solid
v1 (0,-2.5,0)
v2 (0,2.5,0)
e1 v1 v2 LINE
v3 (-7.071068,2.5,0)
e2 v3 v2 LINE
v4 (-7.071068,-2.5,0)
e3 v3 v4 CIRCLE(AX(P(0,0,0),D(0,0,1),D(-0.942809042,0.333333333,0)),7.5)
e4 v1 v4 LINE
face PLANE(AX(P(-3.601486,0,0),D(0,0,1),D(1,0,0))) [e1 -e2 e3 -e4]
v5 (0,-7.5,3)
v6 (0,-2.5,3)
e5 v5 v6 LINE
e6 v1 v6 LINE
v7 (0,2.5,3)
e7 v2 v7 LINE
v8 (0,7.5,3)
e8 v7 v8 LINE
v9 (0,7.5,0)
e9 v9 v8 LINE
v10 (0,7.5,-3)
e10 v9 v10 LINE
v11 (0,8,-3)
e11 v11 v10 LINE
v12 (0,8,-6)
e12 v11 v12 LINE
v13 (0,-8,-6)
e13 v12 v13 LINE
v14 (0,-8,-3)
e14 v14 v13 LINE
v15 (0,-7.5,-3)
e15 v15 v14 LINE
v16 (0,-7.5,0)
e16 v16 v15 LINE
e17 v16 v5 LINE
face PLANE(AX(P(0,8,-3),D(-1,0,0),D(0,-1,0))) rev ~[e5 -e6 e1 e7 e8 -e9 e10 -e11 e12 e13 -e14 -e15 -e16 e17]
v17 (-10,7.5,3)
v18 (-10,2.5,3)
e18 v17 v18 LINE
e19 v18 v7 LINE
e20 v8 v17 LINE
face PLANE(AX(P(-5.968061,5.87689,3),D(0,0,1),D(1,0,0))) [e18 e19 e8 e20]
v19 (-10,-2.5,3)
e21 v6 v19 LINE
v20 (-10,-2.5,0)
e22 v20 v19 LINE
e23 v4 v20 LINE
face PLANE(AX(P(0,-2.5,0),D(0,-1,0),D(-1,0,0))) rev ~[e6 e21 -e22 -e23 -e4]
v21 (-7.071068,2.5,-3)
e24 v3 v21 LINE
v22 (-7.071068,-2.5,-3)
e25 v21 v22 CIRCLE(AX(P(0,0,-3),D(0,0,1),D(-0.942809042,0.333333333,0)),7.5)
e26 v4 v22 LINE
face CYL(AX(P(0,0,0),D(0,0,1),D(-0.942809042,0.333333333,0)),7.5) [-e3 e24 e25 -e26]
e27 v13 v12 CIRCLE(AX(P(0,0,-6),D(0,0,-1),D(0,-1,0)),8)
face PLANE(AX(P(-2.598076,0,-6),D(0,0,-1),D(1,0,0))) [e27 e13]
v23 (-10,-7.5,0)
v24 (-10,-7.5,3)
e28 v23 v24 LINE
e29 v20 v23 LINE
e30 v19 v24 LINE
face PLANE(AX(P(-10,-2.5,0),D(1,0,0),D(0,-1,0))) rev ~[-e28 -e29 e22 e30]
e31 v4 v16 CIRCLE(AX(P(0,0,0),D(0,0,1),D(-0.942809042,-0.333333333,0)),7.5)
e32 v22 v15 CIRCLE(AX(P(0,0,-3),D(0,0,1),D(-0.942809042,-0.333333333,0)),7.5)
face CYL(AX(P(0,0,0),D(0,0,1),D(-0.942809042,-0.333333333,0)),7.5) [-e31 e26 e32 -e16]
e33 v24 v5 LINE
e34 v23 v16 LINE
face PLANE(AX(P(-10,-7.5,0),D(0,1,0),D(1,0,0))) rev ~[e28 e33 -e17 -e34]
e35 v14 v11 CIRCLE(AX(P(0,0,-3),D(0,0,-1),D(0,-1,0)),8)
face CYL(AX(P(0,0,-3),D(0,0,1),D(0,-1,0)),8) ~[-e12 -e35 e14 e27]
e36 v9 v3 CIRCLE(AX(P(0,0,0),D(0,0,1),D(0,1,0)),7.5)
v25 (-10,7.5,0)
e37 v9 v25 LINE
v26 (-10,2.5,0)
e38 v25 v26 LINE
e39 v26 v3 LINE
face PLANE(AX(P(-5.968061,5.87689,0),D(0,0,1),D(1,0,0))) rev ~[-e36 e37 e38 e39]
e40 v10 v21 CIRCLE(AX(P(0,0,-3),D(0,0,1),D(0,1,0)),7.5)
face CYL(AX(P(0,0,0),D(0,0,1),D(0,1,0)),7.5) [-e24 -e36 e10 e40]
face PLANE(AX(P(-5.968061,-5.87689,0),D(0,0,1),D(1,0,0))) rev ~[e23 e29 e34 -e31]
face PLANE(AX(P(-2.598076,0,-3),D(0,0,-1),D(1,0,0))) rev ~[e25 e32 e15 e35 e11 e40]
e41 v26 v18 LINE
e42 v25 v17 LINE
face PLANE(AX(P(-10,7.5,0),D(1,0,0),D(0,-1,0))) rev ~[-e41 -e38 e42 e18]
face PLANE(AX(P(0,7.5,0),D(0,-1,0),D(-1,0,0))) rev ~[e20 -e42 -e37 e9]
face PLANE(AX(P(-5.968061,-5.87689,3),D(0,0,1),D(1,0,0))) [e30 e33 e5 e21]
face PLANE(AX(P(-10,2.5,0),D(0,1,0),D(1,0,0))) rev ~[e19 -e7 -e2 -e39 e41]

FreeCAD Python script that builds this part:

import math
import FreeCAD as App
import Part
import Sketcher

V = App.Vector

doc = App.newDocument("Part")
params = doc.addObject("Spreadsheet::Sheet", "Params")
for row, (alias, value) in enumerate([
    ("sketch1_radius", "7.5 mm"),
    ("pad1_length", "3 mm"),
    ("sketch2_width", "10 mm"),
    ("sketch2_height", "5 mm"),
    ("pad2_length", "3 mm"),
    ("sketch3_radius", "8 mm"),
    ("pad3_length", "3 mm"),
], start=1):
    params.set(f"A{row}", alias)
    params.set(f"B{row}", "=" + value)
    params.setAlias(f"B{row}", alias)

body = doc.addObject("PartDesign::Body", "Body")

sketch1 = body.newObject("Sketcher::SketchObject", "Sketch")
sketch1.AttachmentSupport = (doc.getObject("XY_Plane"), [""])
sketch1.MapMode = "FlatFace"
sketch1.addGeometry([
    Part.ArcOfCircle(Part.Circle(V(0, 0, 0), V(0, 0, 1), 8), math.radians(161), math.radians(199)),
    Part.ArcOfCircle(Part.Circle(V(0, 0, 0), V(0, 0, 1), 8), math.radians(-161), math.radians(-90)),
    Part.LineSegment(V(0, -8, 0), V(0, 8, 0)),
    Part.ArcOfCircle(Part.Circle(V(0, 0, 0), V(0, 0, 1), 8), math.radians(90), math.radians(161)),
], False)
sketch1.addConstraint([
    Sketcher.Constraint("Tangent", 0, 2, 1, 1),
    Sketcher.Constraint("Coincident", 1, 2, 2, 1),
    Sketcher.Constraint("Coincident", 2, 2, 3, 1),
    Sketcher.Constraint("Tangent", 3, 2, 0, 1),
    Sketcher.Constraint("Vertical", 2),
    Sketcher.Constraint("Coincident", 0, 3, -1, 1),
    Sketcher.Constraint("Equal", 0, 1),
    Sketcher.Constraint("Equal", 1, 3),
    Sketcher.Constraint("PointOnObject", 1, 2, -2),
    Sketcher.Constraint("Vertical", 0, 2, 3, 2),
    Sketcher.Constraint("Radius", 0, 7.5),
    Sketcher.Constraint("DistanceY", 1, 2, 0, 2, 5.0),
])
sketch1.setExpression("Constraints[10]", "Params.sketch1_radius")
pad1 = body.newObject("PartDesign::Pad", "Pad")
pad1.Profile = sketch1
pad1.setExpression("Length", "Params.pad1_length")
pad1.Reversed = True

sketch2 = body.newObject("Sketcher::SketchObject", "Sketch001")
sketch2.AttachmentSupport = (doc.getObject("XY_Plane"), [""])
sketch2.MapMode = "FlatFace"
sketch2.addGeometry([
    Part.LineSegment(V(0, 8, 0), V(-10, 8, 0)),
    Part.LineSegment(V(-10, 8, 0), V(-10, 2, 0)),
    Part.LineSegment(V(-10, 2, 0), V(0, 2, 0)),
    Part.LineSegment(V(0, 2, 0), V(0, 8, 0)),
    Part.LineSegment(V(-10, -8, 0), V(0, -8, 0)),
    Part.LineSegment(V(0, -8, 0), V(0, -2, 0)),
    Part.LineSegment(V(0, -2, 0), V(-10, -2, 0)),
    Part.LineSegment(V(-10, -2, 0), V(-10, -8, 0)),
], False)
sketch2.addConstraint([
    Sketcher.Constraint("Coincident", 0, 2, 1, 1),
    Sketcher.Constraint("Coincident", 1, 2, 2, 1),
    Sketcher.Constraint("Coincident", 2, 2, 3, 1),
    Sketcher.Constraint("Coincident", 3, 2, 0, 1),
    Sketcher.Constraint("Coincident", 4, 2, 5, 1),
    Sketcher.Constraint("Coincident", 5, 2, 6, 1),
    Sketcher.Constraint("Coincident", 6, 2, 7, 1),
    Sketcher.Constraint("Coincident", 7, 2, 4, 1),
    Sketcher.Constraint("Horizontal", 0),
    Sketcher.Constraint("Vertical", 1),
    Sketcher.Constraint("Horizontal", 2),
    Sketcher.Constraint("Vertical", 3),
    Sketcher.Constraint("Horizontal", 4),
    Sketcher.Constraint("Vertical", 5),
    Sketcher.Constraint("Horizontal", 6),
    Sketcher.Constraint("Vertical", 7),
    Sketcher.Constraint("Symmetric", 3, 2, 4, 2, -1, 1),
    Sketcher.Constraint("Symmetric", 2, 2, 5, 2, -1),
    Sketcher.Constraint("Vertical", 1, 2, 6, 2),
    Sketcher.Constraint("DistanceX", 0, 2, 0, 1, 10.0),
    Sketcher.Constraint("DistanceY", 1, 2, 1, 1, 5.0),
    Sketcher.Constraint("DistanceY", 4, 2, 2, 2, 10.0),
])
sketch2.setExpression("Constraints[19]", "Params.sketch2_width")
sketch2.setExpression("Constraints[20]", "Params.sketch2_height")
pad2 = body.newObject("PartDesign::Pad", "Pad001")
pad2.Profile = sketch2
pad2.setExpression("Length", "Params.pad2_length")

sketch3 = body.newObject("Sketcher::SketchObject", "Sketch002")
sketch3.AttachmentSupport = (doc.getObject("XY_Plane"), [""])
sketch3.MapMode = "FlatFace"
sketch3.AttachmentOffset = App.Placement(V(0, 0, -3), App.Rotation())
sketch3.addGeometry([
    Part.ArcOfCircle(Part.Circle(V(0, 0, 0), V(0, 0, 1), 8), math.radians(90), math.radians(270)),
    Part.LineSegment(V(0, 8, 0), V(0, -8, 0)),
], False)
sketch3.addConstraint([
    Sketcher.Constraint("Coincident", 0, 1, 1, 1),
    Sketcher.Constraint("Coincident", 1, 2, 0, 2),
    Sketcher.Constraint("Vertical", 1),
    Sketcher.Constraint("Coincident", 0, 3, -1, 1),
    Sketcher.Constraint("PointOnObject", 0, 1, -2),
    Sketcher.Constraint("Radius", 0, 8.0),
])
sketch3.setExpression("Constraints[5]", "Params.sketch3_radius")
pad3 = body.newObject("PartDesign::Pad", "Pad002")
pad3.Profile = sketch3
pad3.setExpression("Length", "Params.pad3_length")
pad3.Reversed = True

doc.recompute()
